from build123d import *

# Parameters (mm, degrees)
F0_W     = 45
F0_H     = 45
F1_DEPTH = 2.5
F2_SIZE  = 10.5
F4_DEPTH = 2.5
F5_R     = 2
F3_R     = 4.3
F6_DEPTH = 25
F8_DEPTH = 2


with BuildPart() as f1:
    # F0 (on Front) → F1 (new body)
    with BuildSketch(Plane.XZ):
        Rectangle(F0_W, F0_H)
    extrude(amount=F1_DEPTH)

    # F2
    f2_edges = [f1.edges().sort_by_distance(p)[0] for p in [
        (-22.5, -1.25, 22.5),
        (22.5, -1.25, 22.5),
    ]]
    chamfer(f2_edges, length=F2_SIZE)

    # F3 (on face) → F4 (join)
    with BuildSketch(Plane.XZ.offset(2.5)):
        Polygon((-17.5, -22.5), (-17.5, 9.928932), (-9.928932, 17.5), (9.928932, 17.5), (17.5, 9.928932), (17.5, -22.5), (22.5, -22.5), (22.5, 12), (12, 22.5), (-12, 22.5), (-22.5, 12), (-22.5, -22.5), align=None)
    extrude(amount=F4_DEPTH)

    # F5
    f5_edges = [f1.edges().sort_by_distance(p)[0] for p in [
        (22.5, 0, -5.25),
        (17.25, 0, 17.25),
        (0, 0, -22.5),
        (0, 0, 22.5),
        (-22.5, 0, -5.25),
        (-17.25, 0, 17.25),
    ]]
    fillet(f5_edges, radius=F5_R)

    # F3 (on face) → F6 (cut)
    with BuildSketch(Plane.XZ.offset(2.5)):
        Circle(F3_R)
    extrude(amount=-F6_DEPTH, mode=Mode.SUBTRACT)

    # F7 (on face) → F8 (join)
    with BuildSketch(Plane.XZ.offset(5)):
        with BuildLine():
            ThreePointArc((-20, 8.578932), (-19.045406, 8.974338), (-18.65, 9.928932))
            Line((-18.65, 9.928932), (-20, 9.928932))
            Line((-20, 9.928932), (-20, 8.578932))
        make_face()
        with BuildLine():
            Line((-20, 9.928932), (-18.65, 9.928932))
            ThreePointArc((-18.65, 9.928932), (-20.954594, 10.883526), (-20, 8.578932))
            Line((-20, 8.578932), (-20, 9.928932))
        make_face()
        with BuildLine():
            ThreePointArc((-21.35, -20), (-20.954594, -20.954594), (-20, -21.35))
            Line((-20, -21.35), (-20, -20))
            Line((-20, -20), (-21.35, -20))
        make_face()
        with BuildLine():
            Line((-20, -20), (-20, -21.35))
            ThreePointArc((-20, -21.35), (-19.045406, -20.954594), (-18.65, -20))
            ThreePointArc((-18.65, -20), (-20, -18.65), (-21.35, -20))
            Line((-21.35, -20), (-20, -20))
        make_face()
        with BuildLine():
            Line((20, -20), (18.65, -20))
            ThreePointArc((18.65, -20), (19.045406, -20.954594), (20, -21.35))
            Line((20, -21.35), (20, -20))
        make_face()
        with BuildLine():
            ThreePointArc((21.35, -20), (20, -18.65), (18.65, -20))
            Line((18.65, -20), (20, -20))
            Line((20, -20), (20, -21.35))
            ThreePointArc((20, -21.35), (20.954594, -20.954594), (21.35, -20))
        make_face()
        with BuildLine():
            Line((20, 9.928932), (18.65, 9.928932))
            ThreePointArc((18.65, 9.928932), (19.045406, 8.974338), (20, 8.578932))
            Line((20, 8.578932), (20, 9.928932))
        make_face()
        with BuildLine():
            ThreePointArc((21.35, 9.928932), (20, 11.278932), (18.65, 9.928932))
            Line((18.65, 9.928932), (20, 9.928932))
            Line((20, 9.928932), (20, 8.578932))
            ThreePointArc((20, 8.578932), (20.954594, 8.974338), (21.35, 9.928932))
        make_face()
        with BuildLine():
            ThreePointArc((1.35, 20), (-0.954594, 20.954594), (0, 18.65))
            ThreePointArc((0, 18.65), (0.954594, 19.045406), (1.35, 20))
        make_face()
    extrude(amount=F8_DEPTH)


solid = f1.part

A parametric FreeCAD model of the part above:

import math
import FreeCAD as App
import Part
import Sketcher
from FreeCAD import Vector


def edges_at(feature, points):
    """Names of the edges that pass closest to the given points."""
    edges = feature.Shape.Edges
    near = lambda p: min(range(len(edges)), key=lambda i: edges[i].distToShape(Part.Vertex(*p))[0])
    return sorted({f"Edge{near(p) + 1}" for p in points})


def add_polygon(sketch, points):
    """Adds a closed chain of lines whose ends are joined by coincident constraints."""
    first, n = sketch.GeometryCount, len(points)
    for a, b in zip(points, points[1:] + points[:1]):
        sketch.addGeometry(Part.LineSegment(App.Vector(*a, 0), App.Vector(*b, 0)), False)
    for i in range(n):
        sketch.addConstraint(Sketcher.Constraint("Coincident", first + i, 2, first + (i + 1) % n, 1))

doc = App.newDocument("Part")
body = doc.addObject("PartDesign::Body", "Body")

# Sketch on XZ plane
sketch1 = doc.addObject("Sketcher::SketchObject", "Sketch")
body.addObject(sketch1)
sketch1.AttachmentSupport = (doc.XZ_Plane, [""])
sketch1.MapMode = "FlatFace"
add_polygon(sketch1, [(-22, 22), (-22, -22), (22, -22), (22, 22)])  # lines 0-3
sketch1.addConstraint([
    Sketcher.Constraint("Vertical", 0),
    Sketcher.Constraint("Horizontal", 1),
    Sketcher.Constraint("Vertical", 2),
    Sketcher.Constraint("Horizontal", 3),
    Sketcher.Constraint("Symmetric", 0, 2, 2, 2, -1, 1),
    Sketcher.Constraint("Equal", 3, 0),
    Sketcher.Constraint("DistanceX", 1, 1, 1, 2, 45.0),
])
pad1 = doc.addObject("PartDesign::Pad", "Pad")
body.addObject(pad1)
pad1.Profile = sketch1
pad1.Length = 2.5
doc.recompute()

chamfer = doc.addObject("PartDesign::Chamfer", "Chamfer")
body.addObject(chamfer)
chamfer.Base = (pad1, edges_at(pad1, [(-22.5, -1.25, 22.5), (22.5, -1.25, 22.5)]))
chamfer.Size = 10.5

# Sketch on XZ plane
sketch2 = doc.addObject("Sketcher::SketchObject", "Sketch001")
body.addObject(sketch2)
sketch2.AttachmentSupport = (doc.XZ_Plane, [""])
sketch2.MapMode = "FlatFace"
sketch2.AttachmentOffset = App.Placement(Vector(0, 0, 2.5), App.Rotation())
add_polygon(sketch2, [(-18, -22), (-18, 10), (-10, 18), (10, 18), (18, 10), (18, -22), (22, -22), (22, 12), (12, 22), (-12, 22), (-22, 12), (-22, -22)])  # lines 0-11
sketch2.addConstraint([
    Sketcher.Constraint("Vertical", 0),
    Sketcher.Constraint("Horizontal", 2),
    Sketcher.Constraint("Vertical", 4),
    Sketcher.Constraint("Horizontal", 5),
    Sketcher.Constraint("Vertical", 6),
    Sketcher.Constraint("Horizontal", 8),
    Sketcher.Constraint("Vertical", 10),
    Sketcher.Constraint("Horizontal", 11),
    Sketcher.Constraint("Symmetric", 0, 2, 3, 2, -2),
    Sketcher.Constraint("Symmetric", 6, 2, 9, 2, -2),
    Sketcher.Constraint("Perpendicular", 1, 3),
    Sketcher.Constraint("Parallel", 3, 7),
    Sketcher.Constraint("Perpendicular", 7, 9),
    Sketcher.Constraint("Horizontal", 5, 2, 10, 2),
    Sketcher.Constraint("Equal", 1, 3),
    Sketcher.Constraint("DistanceX", 5, 1, 5, 2, 5.0),
    Sketcher.Constraint("DistanceX", 8, 2, 8, 1, 24.0),
    Sketcher.Constraint("DistanceY", 6, 1, 6, 2, 34.5),
    Sketcher.Constraint("DistanceY", -1, 1, 6, 2, 12.0),
    Sketcher.Constraint("DistanceX", 0, 2, 3, 2, 35.0),
    Sketcher.Constraint("DistanceY", 4, 2, 2, 2, 40.0),
    Sketcher.Constraint("DistanceX", 2, 1, 2, 2, 19.857864),
])
pad2 = doc.addObject("PartDesign::Pad", "Pad001")
body.addObject(pad2)
pad2.Profile = sketch2
pad2.Length = 2.5
doc.recompute()

fillet = doc.addObject("PartDesign::Fillet", "Fillet")
body.addObject(fillet)
fillet.Base = (pad2, edges_at(pad2, [
    (22.5, 0, -5.25),
    (17.25, 0, 17.25),
    (0, 0, -22.5),
    (0, 0, 22.5),
    (-22.5, 0, -5.25),
    (-17.25, 0, 17.25),
]))
fillet.Radius = 2

# Sketch on XZ plane
sketch3 = doc.addObject("Sketcher::SketchObject", "Sketch002")
body.addObject(sketch3)
sketch3.AttachmentSupport = (doc.XZ_Plane, [""])
sketch3.MapMode = "FlatFace"
sketch3.AttachmentOffset = App.Placement(Vector(0, 0, 2.5), App.Rotation())
sketch3.addGeometry(Part.Circle(Vector(0, 0, 0), Vector(0, 0, 1), 4.3), False)
sketch3.addConstraint([
    Sketcher.Constraint("Coincident", 0, 3, -1, 1),
    Sketcher.Constraint("Diameter", 0, 8.6),
])
pocket1 = doc.addObject("PartDesign::Pocket", "Pocket")
body.addObject(pocket1)
pocket1.Profile = sketch3
pocket1.Length = 25

# Sketch on XZ plane
sketch4 = doc.addObject("Sketcher::SketchObject", "Sketch003")
body.addObject(sketch4)
sketch4.AttachmentSupport = (doc.XZ_Plane, [""])
sketch4.MapMode = "FlatFace"
sketch4.AttachmentOffset = App.Placement(Vector(0, 0, 5), App.Rotation())
sketch4.addGeometry([
    Part.ArcOfCircle(Part.Circle(Vector(-20, 9.9, 0), Vector(0, 0, 1), 1.4), math.radians(-90), math.radians(0)),  # 0
    Part.ArcOfCircle(Part.Circle(Vector(-20, 9.9, 0), Vector(0, 0, 1), 1.3), math.radians(0), math.radians(270)),  # 1
    Part.ArcOfCircle(Part.Circle(Vector(-20, -20, 0), Vector(0, 0, 1), 1.4), math.radians(-180), math.radians(-90)),  # 2
    Part.ArcOfCircle(Part.Circle(Vector(-20, -20, 0), Vector(0, 0, 1), 1.4), math.radians(-90), math.radians(0)),  # 3
    Part.ArcOfCircle(Part.Circle(Vector(-20, -20, 0), Vector(0, 0, 1), 1.4), math.radians(0), math.radians(180)),  # 4
    Part.ArcOfCircle(Part.Circle(Vector(20, -20, 0), Vector(0, 0, 1), 1.4), math.radians(-180), math.radians(-90)),  # 5
    Part.ArcOfCircle(Part.Circle(Vector(20, -20, 0), Vector(0, 0, 1), 1.4), math.radians(-90), math.radians(0)),  # 6
    Part.ArcOfCircle(Part.Circle(Vector(20, -20, 0), Vector(0, 0, 1), 1.4), math.radians(0), math.radians(180)),  # 7
    Part.ArcOfCircle(Part.Circle(Vector(20, 9.9, 0), Vector(0, 0, 1), 1.4), math.radians(-180), math.radians(-90)),  # 8
    Part.ArcOfCircle(Part.Circle(Vector(20, 9.9, 0), Vector(0, 0, 1), 1.4), math.radians(-90), math.radians(0)),  # 9
    Part.ArcOfCircle(Part.Circle(Vector(20, 9.9, 0), Vector(0, 0, 1), 1.4), math.radians(0), math.radians(180)),  # 10
    Part.ArcOfCircle(Part.Circle(Vector(0, 20, 0), Vector(0, 0, 1), 1.3), math.radians(0), math.radians(270)),  # 11
    Part.ArcOfCircle(Part.Circle(Vector(0, 20, 0), Vector(0, 0, 1), 1.4), math.radians(-90), math.radians(0)),  # 12
], False)
sketch4.addConstraint([
    Sketcher.Constraint("Tangent", 0, 1, 1, 2),
    Sketcher.Constraint("Coincident", 1, 1, 0, 2),
    Sketcher.Constraint("Tangent", 2, 2, 3, 1),
    Sketcher.Constraint("Tangent", 3, 2, 4, 1),
    Sketcher.Constraint("Tangent", 4, 2, 2, 1),
    Sketcher.Constraint("Tangent", 5, 2, 6, 1),
    Sketcher.Constraint("Tangent", 6, 2, 7, 1),
    Sketcher.Constraint("Tangent", 7, 2, 5, 1),
    Sketcher.Constraint("Tangent", 8, 2, 9, 1),
    Sketcher.Constraint("Tangent", 9, 2, 10, 1),
    Sketcher.Constraint("Tangent", 10, 2, 8, 1),
    Sketcher.Constraint("Tangent", 11, 1, 12, 2),
    Sketcher.Constraint("Coincident", 12, 1, 11, 2),
    Sketcher.Constraint("Equal", 1, 2),
    Sketcher.Constraint("Equal", 4, 5),
    Sketcher.Constraint("Equal", 7, 8),
    Sketcher.Constraint("Equal", 10, 11),
    Sketcher.Constraint("Symmetric", 2, 3, 5, 3, -2),
    Sketcher.Constraint("Symmetric", 0, 3, 8, 3, -2),
    Sketcher.Constraint("PointOnObject", 11, 3, -2),
    Sketcher.Constraint("PointOnObject", 12, 1, -2),
    Sketcher.Constraint("Horizontal", 10, 3, 1, 1),
    Sketcher.Constraint("Horizontal", 7, 3, 3, 2),
    Sketcher.Constraint("Horizontal", 3, 2, 4, 2),
    Sketcher.Constraint("Horizontal", 4, 2, 6, 2),
    Sketcher.Constraint("Horizontal", 6, 2, 7, 2),
    Sketcher.Constraint("Horizontal", 1, 1, 9, 2),
    Sketcher.Constraint("Horizontal", 9, 2, 10, 2),
    Sketcher.Constraint("Horizontal", 12, 3, 11, 1),
    Sketcher.Constraint("Vertical", 1, 3, 2, 3),
    Sketcher.Constraint("Vertical", 4, 3, 0, 1),
    Sketcher.Constraint("Vertical", 0, 1, 2, 2),
    Sketcher.Constraint("Vertical", 10, 3, 5, 2),
    Sketcher.Constraint("Vertical", 5, 2, 8, 2),
    Sketcher.Constraint("Radius", 0, 1.350001),
    Sketcher.Constraint("DistanceX", 0, 3, -1, 1, 20.000001),
    Sketcher.Constraint("DistanceY", 2, 3, -1, 1, 19.999999),
    Sketcher.Constraint("DistanceY", -1, 1, 11, 3, 20.0),
    Sketcher.Constraint("DistanceY", -1, 1, 1, 3, 9.928932),
])
pad3 = doc.addObject("PartDesign::Pad", "Pad002")
body.addObject(pad3)
pad3.Profile = sketch4
pad3.Length = 2

doc.recompute()
